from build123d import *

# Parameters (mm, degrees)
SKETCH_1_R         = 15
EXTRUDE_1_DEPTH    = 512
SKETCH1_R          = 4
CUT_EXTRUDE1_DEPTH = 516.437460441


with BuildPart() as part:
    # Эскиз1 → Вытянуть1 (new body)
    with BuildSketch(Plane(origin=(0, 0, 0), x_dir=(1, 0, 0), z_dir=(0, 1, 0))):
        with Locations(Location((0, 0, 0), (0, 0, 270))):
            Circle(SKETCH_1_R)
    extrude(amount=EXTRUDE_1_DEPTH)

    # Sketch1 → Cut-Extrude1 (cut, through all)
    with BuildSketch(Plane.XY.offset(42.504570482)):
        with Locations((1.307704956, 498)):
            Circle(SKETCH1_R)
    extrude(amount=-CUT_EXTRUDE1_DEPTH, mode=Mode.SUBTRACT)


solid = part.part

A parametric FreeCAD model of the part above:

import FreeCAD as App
import Part
import Sketcher

doc = App.newDocument("Part")
params = doc.addObject("Spreadsheet::Sheet", "Params")
for row, (alias, value) in enumerate([
    ("sketch1_diameter", "30 mm"),
    ("pad1_length", "512 mm"),
    ("sketch2_diameter", "8 mm"),
], start=1):
    params.set(f"A{row}", alias)
    params.set(f"B{row}", "=" + value)
    params.setAlias(f"B{row}", alias)

body = doc.addObject("PartDesign::Body", "Body")

sketch1 = doc.addObject("Sketcher::SketchObject", "Sketch")
body.addObject(sketch1)
sketch1.AttachmentSupport = (doc.XZ_Plane, [""])
sketch1.MapMode = "FlatFace"
sketch1.addGeometry(Part.Circle(App.Vector(0, 0, 0), App.Vector(0, 0, 1), 15), False)
sketch1.addConstraint([
    Sketcher.Constraint("Coincident", 0, 3, -1, 1),
    Sketcher.Constraint("Diameter", 0, 30.0),
])
sketch1.setExpression("Constraints[1]", "Params.sketch1_diameter")
pad1 = doc.addObject("PartDesign::Pad", "Pad")
body.addObject(pad1)
pad1.Profile = sketch1
pad1.setExpression("Length", "Params.pad1_length")
pad1.Reversed = True

sketch2 = doc.addObject("Sketcher::SketchObject", "Sketch001")
body.addObject(sketch2)
sketch2.AttachmentSupport = (doc.XY_Plane, [""])
sketch2.MapMode = "FlatFace"
sketch2.AttachmentOffset = App.Placement(App.Vector(0, 0, 42.50457), App.Rotation())
sketch2.addGeometry(Part.Circle(App.Vector(1.3, 498, 0), App.Vector(0, 0, 1), 4), False)
sketch2.addConstraint([
    Sketcher.Constraint("Diameter", 0, 8.0),
    Sketcher.Constraint("DistanceY", -1, 1, 0, 3, 498.0),
    Sketcher.Constraint("DistanceX", -1, 1, 0, 3, 1.307705),
])
sketch2.setExpression("Constraints[0]", "Params.sketch2_diameter")
pocket1 = doc.addObject("PartDesign::Pocket", "Pocket")
body.addObject(pocket1)
pocket1.Profile = sketch2
pocket1.Type = "ThroughAll"

doc.recompute()
